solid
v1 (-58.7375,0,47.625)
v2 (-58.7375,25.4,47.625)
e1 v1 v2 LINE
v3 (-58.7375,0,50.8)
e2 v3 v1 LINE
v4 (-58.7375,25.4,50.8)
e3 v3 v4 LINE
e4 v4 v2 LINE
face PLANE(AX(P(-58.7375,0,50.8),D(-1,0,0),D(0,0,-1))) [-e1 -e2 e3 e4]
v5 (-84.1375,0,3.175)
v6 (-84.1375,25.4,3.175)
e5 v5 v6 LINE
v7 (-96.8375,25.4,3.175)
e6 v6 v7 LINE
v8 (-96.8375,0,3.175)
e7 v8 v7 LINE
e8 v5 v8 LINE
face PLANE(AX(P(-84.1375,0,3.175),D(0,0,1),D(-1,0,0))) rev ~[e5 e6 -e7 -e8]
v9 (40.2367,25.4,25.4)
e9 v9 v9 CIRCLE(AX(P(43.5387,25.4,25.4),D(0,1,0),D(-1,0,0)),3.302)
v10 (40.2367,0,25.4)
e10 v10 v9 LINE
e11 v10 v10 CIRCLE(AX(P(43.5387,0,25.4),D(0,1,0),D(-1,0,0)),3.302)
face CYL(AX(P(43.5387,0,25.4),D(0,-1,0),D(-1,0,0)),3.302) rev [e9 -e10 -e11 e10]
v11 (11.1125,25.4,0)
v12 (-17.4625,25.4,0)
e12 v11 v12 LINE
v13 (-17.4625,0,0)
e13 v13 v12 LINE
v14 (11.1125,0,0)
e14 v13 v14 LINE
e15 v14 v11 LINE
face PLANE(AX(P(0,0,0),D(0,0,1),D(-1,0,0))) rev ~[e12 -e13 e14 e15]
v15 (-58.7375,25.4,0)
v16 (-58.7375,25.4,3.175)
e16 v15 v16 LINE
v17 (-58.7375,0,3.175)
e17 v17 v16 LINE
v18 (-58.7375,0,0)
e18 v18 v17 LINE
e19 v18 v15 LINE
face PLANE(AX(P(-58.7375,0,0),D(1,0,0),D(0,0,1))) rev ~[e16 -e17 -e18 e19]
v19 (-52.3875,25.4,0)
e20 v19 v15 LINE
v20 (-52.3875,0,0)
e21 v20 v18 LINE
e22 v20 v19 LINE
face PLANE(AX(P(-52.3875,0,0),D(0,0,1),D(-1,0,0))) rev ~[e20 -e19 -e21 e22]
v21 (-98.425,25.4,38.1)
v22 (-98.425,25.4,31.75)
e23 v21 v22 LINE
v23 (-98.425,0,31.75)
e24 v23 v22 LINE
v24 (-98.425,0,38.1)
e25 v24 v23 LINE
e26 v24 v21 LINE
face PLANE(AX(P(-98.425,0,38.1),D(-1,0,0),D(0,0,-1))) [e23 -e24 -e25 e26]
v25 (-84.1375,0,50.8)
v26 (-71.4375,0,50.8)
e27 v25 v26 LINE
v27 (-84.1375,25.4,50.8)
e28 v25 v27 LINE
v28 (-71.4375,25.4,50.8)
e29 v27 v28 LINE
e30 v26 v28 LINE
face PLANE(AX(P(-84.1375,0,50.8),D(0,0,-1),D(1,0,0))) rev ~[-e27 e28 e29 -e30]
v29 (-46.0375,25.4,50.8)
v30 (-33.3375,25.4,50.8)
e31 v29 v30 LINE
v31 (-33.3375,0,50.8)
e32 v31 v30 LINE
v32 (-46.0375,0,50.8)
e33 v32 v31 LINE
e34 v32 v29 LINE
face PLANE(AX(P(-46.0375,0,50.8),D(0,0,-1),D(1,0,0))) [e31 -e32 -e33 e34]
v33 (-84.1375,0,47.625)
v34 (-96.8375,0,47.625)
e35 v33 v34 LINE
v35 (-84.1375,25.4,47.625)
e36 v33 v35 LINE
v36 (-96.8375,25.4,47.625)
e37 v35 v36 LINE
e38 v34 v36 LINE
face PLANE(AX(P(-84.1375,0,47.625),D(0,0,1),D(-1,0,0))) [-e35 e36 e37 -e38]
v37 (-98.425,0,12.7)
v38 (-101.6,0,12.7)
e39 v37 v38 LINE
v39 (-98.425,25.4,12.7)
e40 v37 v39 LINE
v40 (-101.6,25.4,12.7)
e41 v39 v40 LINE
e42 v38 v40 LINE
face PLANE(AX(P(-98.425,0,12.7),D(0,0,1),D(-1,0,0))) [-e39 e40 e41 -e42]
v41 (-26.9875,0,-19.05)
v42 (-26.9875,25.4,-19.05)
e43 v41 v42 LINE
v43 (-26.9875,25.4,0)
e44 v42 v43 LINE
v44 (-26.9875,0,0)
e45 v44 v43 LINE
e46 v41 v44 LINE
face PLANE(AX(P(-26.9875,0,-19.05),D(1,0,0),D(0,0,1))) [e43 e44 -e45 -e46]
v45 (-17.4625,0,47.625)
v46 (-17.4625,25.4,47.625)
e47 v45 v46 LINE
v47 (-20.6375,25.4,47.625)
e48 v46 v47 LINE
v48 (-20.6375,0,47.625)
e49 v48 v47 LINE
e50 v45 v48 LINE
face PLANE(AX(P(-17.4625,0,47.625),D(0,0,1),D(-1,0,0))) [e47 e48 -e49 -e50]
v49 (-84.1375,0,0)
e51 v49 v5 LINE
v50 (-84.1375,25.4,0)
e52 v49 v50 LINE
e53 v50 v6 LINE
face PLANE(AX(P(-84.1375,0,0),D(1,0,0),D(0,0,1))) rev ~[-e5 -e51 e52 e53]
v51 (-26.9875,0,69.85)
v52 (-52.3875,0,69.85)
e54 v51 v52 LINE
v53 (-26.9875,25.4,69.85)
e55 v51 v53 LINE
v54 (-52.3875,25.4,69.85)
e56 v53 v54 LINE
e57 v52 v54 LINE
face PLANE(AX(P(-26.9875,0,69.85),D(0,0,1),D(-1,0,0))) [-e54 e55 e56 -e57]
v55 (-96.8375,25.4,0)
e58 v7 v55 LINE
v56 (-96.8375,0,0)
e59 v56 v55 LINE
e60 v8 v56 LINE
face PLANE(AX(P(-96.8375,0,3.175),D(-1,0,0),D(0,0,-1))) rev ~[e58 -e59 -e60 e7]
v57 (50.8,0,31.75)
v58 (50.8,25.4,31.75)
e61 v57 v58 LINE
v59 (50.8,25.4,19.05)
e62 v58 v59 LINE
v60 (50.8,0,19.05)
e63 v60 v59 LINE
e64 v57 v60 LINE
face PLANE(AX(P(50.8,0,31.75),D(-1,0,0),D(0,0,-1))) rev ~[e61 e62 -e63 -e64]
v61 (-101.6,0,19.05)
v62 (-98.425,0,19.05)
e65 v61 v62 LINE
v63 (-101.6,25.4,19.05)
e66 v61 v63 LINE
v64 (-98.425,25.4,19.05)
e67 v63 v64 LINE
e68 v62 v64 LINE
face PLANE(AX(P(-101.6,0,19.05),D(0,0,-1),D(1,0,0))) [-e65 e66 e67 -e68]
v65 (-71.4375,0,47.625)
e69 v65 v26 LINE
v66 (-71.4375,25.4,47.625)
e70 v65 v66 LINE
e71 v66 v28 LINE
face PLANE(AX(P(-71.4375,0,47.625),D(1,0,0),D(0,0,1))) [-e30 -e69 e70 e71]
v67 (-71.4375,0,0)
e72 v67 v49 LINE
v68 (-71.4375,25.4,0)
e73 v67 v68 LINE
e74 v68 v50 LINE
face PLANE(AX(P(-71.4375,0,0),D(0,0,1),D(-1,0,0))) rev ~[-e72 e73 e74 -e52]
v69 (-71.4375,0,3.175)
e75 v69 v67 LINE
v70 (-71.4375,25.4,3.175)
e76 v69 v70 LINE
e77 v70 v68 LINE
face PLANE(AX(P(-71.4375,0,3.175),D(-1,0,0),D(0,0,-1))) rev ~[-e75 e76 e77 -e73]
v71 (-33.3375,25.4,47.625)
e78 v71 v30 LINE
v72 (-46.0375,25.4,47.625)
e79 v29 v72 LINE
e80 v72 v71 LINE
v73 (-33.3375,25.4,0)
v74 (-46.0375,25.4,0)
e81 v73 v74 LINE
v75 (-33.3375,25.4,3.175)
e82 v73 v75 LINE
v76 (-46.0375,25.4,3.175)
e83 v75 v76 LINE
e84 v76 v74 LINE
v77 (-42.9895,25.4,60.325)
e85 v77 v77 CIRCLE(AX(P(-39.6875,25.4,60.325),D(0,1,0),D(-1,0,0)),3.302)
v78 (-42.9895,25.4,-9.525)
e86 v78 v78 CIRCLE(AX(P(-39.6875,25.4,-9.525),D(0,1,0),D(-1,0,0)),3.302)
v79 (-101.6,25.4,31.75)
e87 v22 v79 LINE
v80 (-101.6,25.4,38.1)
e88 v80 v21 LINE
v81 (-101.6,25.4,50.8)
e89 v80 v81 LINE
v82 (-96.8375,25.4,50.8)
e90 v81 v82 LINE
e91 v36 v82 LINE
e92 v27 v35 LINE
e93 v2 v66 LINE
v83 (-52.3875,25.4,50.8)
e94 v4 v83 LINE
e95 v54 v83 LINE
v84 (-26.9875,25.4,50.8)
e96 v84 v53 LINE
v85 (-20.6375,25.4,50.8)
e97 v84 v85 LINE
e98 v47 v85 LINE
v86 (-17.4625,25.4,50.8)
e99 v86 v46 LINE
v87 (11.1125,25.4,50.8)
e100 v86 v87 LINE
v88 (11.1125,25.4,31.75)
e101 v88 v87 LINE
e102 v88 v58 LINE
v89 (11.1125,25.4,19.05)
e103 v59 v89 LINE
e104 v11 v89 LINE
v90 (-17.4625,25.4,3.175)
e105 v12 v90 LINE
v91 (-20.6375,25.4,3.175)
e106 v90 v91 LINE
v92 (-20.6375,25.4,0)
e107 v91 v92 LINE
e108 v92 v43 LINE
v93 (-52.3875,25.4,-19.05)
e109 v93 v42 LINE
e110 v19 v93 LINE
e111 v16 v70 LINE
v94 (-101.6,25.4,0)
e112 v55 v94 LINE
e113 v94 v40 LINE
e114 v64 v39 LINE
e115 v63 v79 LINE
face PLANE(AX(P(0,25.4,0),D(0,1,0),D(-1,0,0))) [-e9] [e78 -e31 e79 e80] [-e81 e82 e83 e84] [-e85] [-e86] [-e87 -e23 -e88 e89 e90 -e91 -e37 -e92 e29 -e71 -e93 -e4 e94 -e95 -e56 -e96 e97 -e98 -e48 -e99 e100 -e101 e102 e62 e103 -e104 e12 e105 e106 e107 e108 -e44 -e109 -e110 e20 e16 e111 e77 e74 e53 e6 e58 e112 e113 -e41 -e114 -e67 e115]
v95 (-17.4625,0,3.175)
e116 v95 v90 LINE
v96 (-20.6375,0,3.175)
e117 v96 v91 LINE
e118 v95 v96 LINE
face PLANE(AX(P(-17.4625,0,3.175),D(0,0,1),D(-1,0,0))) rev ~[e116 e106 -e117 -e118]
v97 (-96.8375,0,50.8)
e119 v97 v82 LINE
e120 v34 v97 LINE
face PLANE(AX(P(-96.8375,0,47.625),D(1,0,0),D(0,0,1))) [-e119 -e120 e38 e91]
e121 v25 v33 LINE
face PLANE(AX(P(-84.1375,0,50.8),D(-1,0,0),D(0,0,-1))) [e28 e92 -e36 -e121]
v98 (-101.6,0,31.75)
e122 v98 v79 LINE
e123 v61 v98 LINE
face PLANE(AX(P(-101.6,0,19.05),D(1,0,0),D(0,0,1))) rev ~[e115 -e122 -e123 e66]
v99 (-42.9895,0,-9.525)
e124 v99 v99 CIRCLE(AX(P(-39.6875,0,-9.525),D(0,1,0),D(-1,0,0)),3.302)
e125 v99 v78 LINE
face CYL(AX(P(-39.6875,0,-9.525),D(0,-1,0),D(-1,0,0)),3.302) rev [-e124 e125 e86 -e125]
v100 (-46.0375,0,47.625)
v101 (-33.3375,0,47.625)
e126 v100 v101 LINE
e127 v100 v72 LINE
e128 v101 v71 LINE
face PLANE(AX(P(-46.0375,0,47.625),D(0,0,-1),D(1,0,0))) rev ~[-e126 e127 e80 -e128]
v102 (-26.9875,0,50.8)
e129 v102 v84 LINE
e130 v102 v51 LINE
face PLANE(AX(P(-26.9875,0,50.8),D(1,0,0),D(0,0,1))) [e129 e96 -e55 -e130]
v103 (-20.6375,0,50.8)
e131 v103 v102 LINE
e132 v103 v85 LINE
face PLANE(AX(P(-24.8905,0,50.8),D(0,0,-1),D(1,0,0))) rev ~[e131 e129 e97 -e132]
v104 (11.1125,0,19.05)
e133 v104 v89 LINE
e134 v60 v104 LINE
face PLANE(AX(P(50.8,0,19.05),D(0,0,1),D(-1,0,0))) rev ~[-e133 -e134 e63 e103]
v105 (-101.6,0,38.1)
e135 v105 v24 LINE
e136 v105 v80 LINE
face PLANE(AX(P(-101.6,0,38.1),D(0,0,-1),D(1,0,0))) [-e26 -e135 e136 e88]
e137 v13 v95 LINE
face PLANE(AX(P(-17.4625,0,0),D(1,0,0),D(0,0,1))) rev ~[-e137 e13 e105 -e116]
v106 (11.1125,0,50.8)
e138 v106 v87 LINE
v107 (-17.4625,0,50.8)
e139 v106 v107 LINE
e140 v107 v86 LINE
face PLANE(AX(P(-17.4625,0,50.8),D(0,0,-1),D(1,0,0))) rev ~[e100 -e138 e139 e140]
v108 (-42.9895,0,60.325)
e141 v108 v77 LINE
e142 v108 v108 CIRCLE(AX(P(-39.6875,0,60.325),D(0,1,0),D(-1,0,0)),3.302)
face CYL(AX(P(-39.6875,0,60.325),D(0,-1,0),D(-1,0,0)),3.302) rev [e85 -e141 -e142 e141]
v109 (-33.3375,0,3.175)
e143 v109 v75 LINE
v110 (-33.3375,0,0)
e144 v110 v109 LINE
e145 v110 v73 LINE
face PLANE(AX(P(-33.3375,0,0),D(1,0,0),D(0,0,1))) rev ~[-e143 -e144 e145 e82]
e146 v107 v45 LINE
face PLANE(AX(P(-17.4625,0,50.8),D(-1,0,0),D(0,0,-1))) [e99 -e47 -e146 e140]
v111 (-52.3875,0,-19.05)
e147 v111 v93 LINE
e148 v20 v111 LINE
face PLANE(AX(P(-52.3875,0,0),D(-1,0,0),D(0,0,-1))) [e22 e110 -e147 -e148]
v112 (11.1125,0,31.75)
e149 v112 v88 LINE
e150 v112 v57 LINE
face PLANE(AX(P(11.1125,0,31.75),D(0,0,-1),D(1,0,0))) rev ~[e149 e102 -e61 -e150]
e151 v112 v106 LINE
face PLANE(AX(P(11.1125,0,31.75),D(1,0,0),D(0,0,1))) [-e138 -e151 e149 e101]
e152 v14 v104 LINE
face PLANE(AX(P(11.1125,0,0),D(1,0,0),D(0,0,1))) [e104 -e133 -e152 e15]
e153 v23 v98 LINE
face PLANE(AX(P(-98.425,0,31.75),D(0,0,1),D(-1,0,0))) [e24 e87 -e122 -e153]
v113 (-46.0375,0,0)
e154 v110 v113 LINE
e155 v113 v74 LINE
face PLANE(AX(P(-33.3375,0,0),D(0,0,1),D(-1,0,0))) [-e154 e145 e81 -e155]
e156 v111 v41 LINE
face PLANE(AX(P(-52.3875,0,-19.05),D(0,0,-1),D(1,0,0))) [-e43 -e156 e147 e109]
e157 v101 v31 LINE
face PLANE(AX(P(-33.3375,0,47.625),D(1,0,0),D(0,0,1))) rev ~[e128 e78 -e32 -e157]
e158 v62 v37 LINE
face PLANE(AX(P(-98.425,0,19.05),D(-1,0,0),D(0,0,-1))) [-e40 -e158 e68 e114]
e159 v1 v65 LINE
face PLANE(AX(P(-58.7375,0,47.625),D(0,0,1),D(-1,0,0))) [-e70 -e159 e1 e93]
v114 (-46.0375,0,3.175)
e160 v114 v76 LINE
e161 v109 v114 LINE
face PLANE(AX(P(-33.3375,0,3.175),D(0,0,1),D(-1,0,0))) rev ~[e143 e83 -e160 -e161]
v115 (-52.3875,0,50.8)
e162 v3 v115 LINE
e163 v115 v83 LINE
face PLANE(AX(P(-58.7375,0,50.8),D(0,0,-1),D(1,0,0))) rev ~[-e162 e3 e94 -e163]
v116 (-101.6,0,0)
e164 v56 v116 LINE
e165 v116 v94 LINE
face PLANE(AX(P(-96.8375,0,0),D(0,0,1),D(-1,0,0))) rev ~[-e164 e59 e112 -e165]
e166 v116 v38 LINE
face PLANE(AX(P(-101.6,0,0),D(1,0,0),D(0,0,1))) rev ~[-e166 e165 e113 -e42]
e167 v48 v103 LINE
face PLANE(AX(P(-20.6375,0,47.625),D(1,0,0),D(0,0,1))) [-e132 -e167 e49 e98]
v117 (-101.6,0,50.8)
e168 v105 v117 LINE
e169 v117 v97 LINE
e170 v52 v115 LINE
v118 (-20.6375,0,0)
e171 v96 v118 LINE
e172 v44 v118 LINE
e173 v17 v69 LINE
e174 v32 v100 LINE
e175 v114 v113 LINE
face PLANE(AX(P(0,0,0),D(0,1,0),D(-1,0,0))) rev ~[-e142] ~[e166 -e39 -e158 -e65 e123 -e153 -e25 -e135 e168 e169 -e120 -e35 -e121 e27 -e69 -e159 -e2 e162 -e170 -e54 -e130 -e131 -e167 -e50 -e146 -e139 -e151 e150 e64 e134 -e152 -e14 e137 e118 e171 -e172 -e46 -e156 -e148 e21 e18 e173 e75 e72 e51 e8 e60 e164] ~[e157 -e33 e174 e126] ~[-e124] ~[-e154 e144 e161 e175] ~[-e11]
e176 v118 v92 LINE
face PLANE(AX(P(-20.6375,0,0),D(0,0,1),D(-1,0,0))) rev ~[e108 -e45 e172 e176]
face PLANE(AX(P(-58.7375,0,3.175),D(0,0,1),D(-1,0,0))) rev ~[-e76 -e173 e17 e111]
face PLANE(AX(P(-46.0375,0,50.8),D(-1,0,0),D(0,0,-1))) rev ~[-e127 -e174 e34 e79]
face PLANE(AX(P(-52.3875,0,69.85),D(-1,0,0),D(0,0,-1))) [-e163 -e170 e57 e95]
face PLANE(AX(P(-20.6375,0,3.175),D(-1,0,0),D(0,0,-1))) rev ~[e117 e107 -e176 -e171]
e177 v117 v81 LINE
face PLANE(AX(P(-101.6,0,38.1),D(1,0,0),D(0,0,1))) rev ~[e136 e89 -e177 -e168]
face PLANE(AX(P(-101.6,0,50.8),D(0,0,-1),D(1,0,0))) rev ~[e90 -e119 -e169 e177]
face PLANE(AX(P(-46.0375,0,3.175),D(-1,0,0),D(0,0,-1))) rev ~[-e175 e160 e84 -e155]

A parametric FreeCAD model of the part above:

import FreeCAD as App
import Part
import Sketcher
from FreeCAD import Vector
Q = App.Units.Quantity


def add_polygon(sketch, points):
    """Adds a closed chain of lines whose ends are joined by coincident constraints."""
    first, n = sketch.GeometryCount, len(points)
    for a, b in zip(points, points[1:] + points[:1]):
        sketch.addGeometry(Part.LineSegment(App.Vector(*a, 0), App.Vector(*b, 0)), False)
    for i in range(n):
        sketch.addConstraint(Sketcher.Constraint("Coincident", first + i, 2, first + (i + 1) % n, 1))

doc = App.newDocument("Part")
body = doc.addObject("PartDesign::Body", "Body")

# Sketch on XZ plane
sketch1 = body.newObject("Sketcher::SketchObject", "Sketch")
sketch1.AttachmentSupport = (doc.getObject("XZ_Plane"), [""])
sketch1.MapMode = "FlatFace"
add_polygon(sketch1, [(-17.5, 3.2), (-20.6, 3.2), (-20.6, 0), (-27, 0), (-27, -19.1), (-52.4, -19.1), (-52.4, 0), (-58.7, 0), (-58.7, 3.2), (-71.4, 3.2), (-71.4, 0), (-84.1, 0), (-84.1, 3.2), (-96.8, 3.2), (-96.8, 0), (-101.6, 0), (-101.6, 12.7), (-98.4, 12.7), (-98.4, 19.1), (-101.6, 19.1), (-101.6, 31.8), (-98.4, 31.8), (-98.4, 38.1), (-101.6, 38.1), (-101.6, 50.8), (-96.8, 50.8), (-96.8, 47.6), (-84.1, 47.6), (-84.1, 50.8), (-71.4, 50.8), (-71.4, 47.6), (-58.7, 47.6), (-58.7, 50.8), (-52.4, 50.8), (-52.4, 69.8), (-27, 69.8), (-27, 50.8), (-20.6, 50.8), (-20.6, 47.6), (-17.5, 47.6), (-17.5, 50.8), (11.1, 50.8), (11.1, 31.8), (50.8, 31.8), (50.8, 19.1), (11.1, 19.1), (11.1, 0), (-17.5, 0)])  # lines 0-47
add_polygon(sketch1, [(-33.3, 47.6), (-33.3, 50.8), (-46, 50.8), (-46, 47.6)])  # lines 48-51
add_polygon(sketch1, [(-46, 3.2), (-46, 0), (-33.3, 0), (-33.3, 3.2)])  # lines 52-55
sketch1.addGeometry(Part.Circle(Vector(-39.7, 60.3, 0), Vector(0, 0, 1), 3.3), False)  # 56
sketch1.addGeometry(Part.Circle(Vector(-39.7, -9.5, 0), Vector(0, 0, 1), 3.3), False)  # 57
sketch1.addGeometry(Part.Circle(Vector(43.5, 25.4, 0), Vector(0, 0, 1), 3.3), False)  # 58
sketch1.addConstraint(Sketcher.Constraint("Horizontal", 0))
sketch1.addConstraint(Sketcher.Constraint("Vertical", 1))
sketch1.addConstraint(Sketcher.Constraint("Horizontal", 2))
sketch1.addConstraint(Sketcher.Constraint("Vertical", 3))
sketch1.addConstraint(Sketcher.Constraint("Horizontal", 4))
sketch1.addConstraint(Sketcher.Constraint("Vertical", 5))
sketch1.addConstraint(Sketcher.Constraint("Horizontal", 6))
sketch1.addConstraint(Sketcher.Constraint("Vertical", 7))
sketch1.addConstraint(Sketcher.Constraint("Horizontal", 8))
sketch1.addConstraint(Sketcher.Constraint("Vertical", 9))
sketch1.addConstraint(Sketcher.Constraint("Horizontal", 10))
sketch1.addConstraint(Sketcher.Constraint("Vertical", 11))
sketch1.addConstraint(Sketcher.Constraint("Horizontal", 12))
sketch1.addConstraint(Sketcher.Constraint("Vertical", 13))
sketch1.addConstraint(Sketcher.Constraint("Horizontal", 14))
sketch1.addConstraint(Sketcher.Constraint("Vertical", 15))
sketch1.addConstraint(Sketcher.Constraint("Horizontal", 16))
sketch1.addConstraint(Sketcher.Constraint("Vertical", 17))
sketch1.addConstraint(Sketcher.Constraint("Horizontal", 18))
sketch1.addConstraint(Sketcher.Constraint("Vertical", 19))
sketch1.addConstraint(Sketcher.Constraint("Horizontal", 20))
sketch1.addConstraint(Sketcher.Constraint("Vertical", 21))
sketch1.addConstraint(Sketcher.Constraint("Horizontal", 22))
sketch1.addConstraint(Sketcher.Constraint("Vertical", 23))
sketch1.addConstraint(Sketcher.Constraint("Horizontal", 24))
sketch1.addConstraint(Sketcher.Constraint("Vertical", 25))
sketch1.addConstraint(Sketcher.Constraint("Horizontal", 26))
sketch1.addConstraint(Sketcher.Constraint("Vertical", 27))
sketch1.addConstraint(Sketcher.Constraint("Horizontal", 28))
sketch1.addConstraint(Sketcher.Constraint("Vertical", 29))
sketch1.addConstraint(Sketcher.Constraint("Horizontal", 30))
sketch1.addConstraint(Sketcher.Constraint("Vertical", 31))
sketch1.addConstraint(Sketcher.Constraint("Horizontal", 32))
sketch1.addConstraint(Sketcher.Constraint("Vertical", 33))
sketch1.addConstraint(Sketcher.Constraint("Horizontal", 34))
sketch1.addConstraint(Sketcher.Constraint("Vertical", 35))
sketch1.addConstraint(Sketcher.Constraint("Horizontal", 36))
sketch1.addConstraint(Sketcher.Constraint("Vertical", 37))
sketch1.addConstraint(Sketcher.Constraint("Horizontal", 38))
sketch1.addConstraint(Sketcher.Constraint("Vertical", 39))
sketch1.addConstraint(Sketcher.Constraint("Horizontal", 40))
sketch1.addConstraint(Sketcher.Constraint("Vertical", 41))
sketch1.addConstraint(Sketcher.Constraint("Horizontal", 42))
sketch1.addConstraint(Sketcher.Constraint("Vertical", 43))
sketch1.addConstraint(Sketcher.Constraint("Horizontal", 44))
sketch1.addConstraint(Sketcher.Constraint("Vertical", 45))
sketch1.addConstraint(Sketcher.Constraint("Horizontal", 46))
sketch1.addConstraint(Sketcher.Constraint("Vertical", 47))
sketch1.addConstraint(Sketcher.Constraint("Vertical", 48))
sketch1.addConstraint(Sketcher.Constraint("Horizontal", 49))
sketch1.addConstraint(Sketcher.Constraint("Vertical", 50))
sketch1.addConstraint(Sketcher.Constraint("Horizontal", 51))
sketch1.addConstraint(Sketcher.Constraint("Vertical", 52))
sketch1.addConstraint(Sketcher.Constraint("Horizontal", 53))
sketch1.addConstraint(Sketcher.Constraint("Vertical", 54))
sketch1.addConstraint(Sketcher.Constraint("Horizontal", 55))
sketch1.addConstraint(Sketcher.Constraint("Equal", 56, 57))
sketch1.addConstraint(Sketcher.Constraint("Equal", 57, 58))
sketch1.addConstraint(Sketcher.Constraint("PointOnObject", 1, 2, -1))
sketch1.addConstraint(Sketcher.Constraint("PointOnObject", 5, 2, -1))
sketch1.addConstraint(Sketcher.Constraint("PointOnObject", 9, 2, -1))
sketch1.addConstraint(Sketcher.Constraint("PointOnObject", 13, 2, -1))
sketch1.addConstraint(Sketcher.Constraint("PointOnObject", 45, 2, -1))
sketch1.addConstraint(Sketcher.Constraint("PointOnObject", 52, 2, -1))
sketch1.addConstraint(Sketcher.Constraint("Horizontal", 0, 2, 7, 2))
sketch1.addConstraint(Sketcher.Constraint("Horizontal", 8, 2, 11, 2))
sketch1.addConstraint(Sketcher.Constraint("Horizontal", 24, 2, 27, 2))
sketch1.addConstraint(Sketcher.Constraint("Horizontal", 26, 2, 29, 2))
sketch1.addConstraint(Sketcher.Constraint("Horizontal", 28, 2, 31, 2))
sketch1.addConstraint(Sketcher.Constraint("Horizontal", 32, 2, 35, 2))
sketch1.addConstraint(Sketcher.Constraint("Horizontal", 30, 2, 37, 2))
sketch1.addConstraint(Sketcher.Constraint("Horizontal", 36, 2, 39, 2))
sketch1.addConstraint(Sketcher.Constraint("Horizontal", 20, 2, 41, 2))
sketch1.addConstraint(Sketcher.Constraint("Horizontal", 18, 2, 43, 2))
sketch1.addConstraint(Sketcher.Constraint("Horizontal", 40, 2, 48, 2))
sketch1.addConstraint(Sketcher.Constraint("Horizontal", 38, 2, 50, 2))
sketch1.addConstraint(Sketcher.Constraint("Horizontal", 47, 2, 54, 2))
sketch1.addConstraint(Sketcher.Constraint("Vertical", 56, 3, 57, 3))
sketch1.addConstraint(Sketcher.Constraint("Vertical", 15, 2, 18, 2))
sketch1.addConstraint(Sketcher.Constraint("Vertical", 17, 2, 20, 2))
sketch1.addConstraint(Sketcher.Constraint("Vertical", 19, 2, 22, 2))
sketch1.addConstraint(Sketcher.Constraint("Vertical", 13, 2, 24, 2))
sketch1.addConstraint(Sketcher.Constraint("Vertical", 11, 2, 26, 2))
sketch1.addConstraint(Sketcher.Constraint("Vertical", 9, 2, 28, 2))
sketch1.addConstraint(Sketcher.Constraint("Vertical", 7, 2, 30, 2))
sketch1.addConstraint(Sketcher.Constraint("Vertical", 5, 2, 32, 2))
sketch1.addConstraint(Sketcher.Constraint("Vertical", 3, 2, 34, 2))
sketch1.addConstraint(Sketcher.Constraint("Vertical", 1, 2, 36, 2))
sketch1.addConstraint(Sketcher.Constraint("Vertical", 41, 2, 44, 2))
sketch1.addConstraint(Sketcher.Constraint("Vertical", 39, 2, 46, 2))
sketch1.addConstraint(Sketcher.Constraint("Vertical", 50, 2, 52, 2))
sketch1.addConstraint(Sketcher.Constraint("Vertical", 51, 2, 53, 2))
sketch1.addConstraint(Sketcher.Constraint("Equal", 2, 6))
sketch1.addConstraint(Sketcher.Constraint("Equal", 8, 10))
sketch1.addConstraint(Sketcher.Constraint("Equal", 10, 12))
sketch1.addConstraint(Sketcher.Constraint("Equal", 0, 16))
sketch1.addConstraint(Sketcher.Constraint("Equal", 30, 49))
sketch1.addConstraint(Sketcher.Constraint("Equal", 38, 1))
sketch1.addConstraint(Sketcher.Constraint("Equal", 55, 15))
sketch1.addConstraint(Sketcher.Constraint("Equal", 36, 17))
sketch1.addConstraint(Sketcher.Constraint("Equal", 15, 19))
sketch1.addConstraint(Sketcher.Constraint("Equal", 17, 21))
sketch1.addConstraint(Sketcher.Constraint("Equal", 19, 23))
sketch1.addConstraint(Sketcher.Constraint("Equal", 13, 25))
sketch1.addConstraint(Sketcher.Constraint("Equal", 5, 33))
sketch1.addConstraint(Sketcher.Constraint("Equal", 35, 41))
sketch1.addConstraint(Sketcher.Constraint("Diameter", 56, Q("0.26 in")))
sketch1.addConstraint(Sketcher.Constraint("DistanceX", 4, 2, 4, 1, Q("1 in")))
sketch1.addConstraint(Sketcher.Constraint("DistanceX", 8, 2, 8, 1, Q("0.5 in")))
sketch1.addConstraint(Sketcher.Constraint("DistanceY", -1, 1, 58, 3, Q("1 in")))
sketch1.addConstraint(Sketcher.Constraint("DistanceX", 14, 2, -1, 1, Q("4 in")))
sketch1.addConstraint(Sketcher.Constraint("DistanceY", -1, 1, 23, 2, Q("2 in")))
sketch1.addConstraint(Sketcher.Constraint("DistanceX", -1, 1, 42, 2, Q("2 in")))
sketch1.addConstraint(Sketcher.Constraint("DistanceY", 57, 3, 0, 2, Q("0.5 in")))
sketch1.addConstraint(Sketcher.Constraint("DistanceX", 57, 3, 2, 2, Q("0.5 in")))
sketch1.addConstraint(Sketcher.Constraint("DistanceY", 30, 2, 56, 3, Q("0.5 in")))
sketch1.addConstraint(Sketcher.Constraint("DistanceX", 48, 2, 36, 2, Q("0.5 in")))
sketch1.addConstraint(Sketcher.Constraint("DistanceX", 0, 2, 0, 1, Q("0.125 in")))
sketch1.addConstraint(Sketcher.Constraint("DistanceX", 14, 2, 14, 1, Q("0.1875 in")))
sketch1.addConstraint(Sketcher.Constraint("DistanceX", 36, 2, 40, 2, Q("1.25 in")))
sketch1.addConstraint(Sketcher.Constraint("DistanceX", -1, 1, 58, 3, Q("43.5387 mm")))
pad1 = body.newObject("PartDesign::Pad", "Pad")
pad1.Profile = sketch1
pad1.Length = Q("1 in")
pad1.Reversed = True

doc.recompute()
